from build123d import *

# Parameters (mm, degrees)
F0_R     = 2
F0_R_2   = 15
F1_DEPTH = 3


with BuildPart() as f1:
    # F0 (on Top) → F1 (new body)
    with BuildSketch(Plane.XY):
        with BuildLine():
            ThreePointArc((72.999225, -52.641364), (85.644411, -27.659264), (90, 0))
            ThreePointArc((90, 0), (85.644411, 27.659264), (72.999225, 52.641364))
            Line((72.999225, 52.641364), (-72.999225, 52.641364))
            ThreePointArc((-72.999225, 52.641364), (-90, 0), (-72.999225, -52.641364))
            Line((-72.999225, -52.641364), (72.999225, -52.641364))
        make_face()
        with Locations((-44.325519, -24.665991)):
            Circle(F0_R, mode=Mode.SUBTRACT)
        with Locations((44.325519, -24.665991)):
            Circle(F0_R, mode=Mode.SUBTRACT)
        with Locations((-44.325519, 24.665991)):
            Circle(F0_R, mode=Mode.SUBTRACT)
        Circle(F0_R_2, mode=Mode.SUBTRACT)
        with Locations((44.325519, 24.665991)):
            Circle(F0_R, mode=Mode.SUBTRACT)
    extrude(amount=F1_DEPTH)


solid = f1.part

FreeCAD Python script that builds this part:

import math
import FreeCAD as App
import Part
import Sketcher
from FreeCAD import Vector

doc = App.newDocument("Part")
body = doc.addObject("PartDesign::Body", "Body")

# Sketch on XY plane
sketch1 = body.newObject("Sketcher::SketchObject", "Sketch")
sketch1.AttachmentSupport = (doc.getObject("XY_Plane"), [""])
sketch1.MapMode = "FlatFace"
sketch1.addGeometry([
    Part.ArcOfCircle(Part.Circle(Vector(0, 0, 0), Vector(0, 0, 1), 90), math.radians(-36), math.radians(0)),  # 0
    Part.ArcOfCircle(Part.Circle(Vector(0, 0, 0), Vector(0, 0, 1), 90), math.radians(0), math.radians(36)),  # 1
    Part.LineSegment(Vector(73, 52.6, 0), Vector(-73, 52.6, 0)),  # 2
    Part.ArcOfCircle(Part.Circle(Vector(0, 0, 0), Vector(0, 0, 1), 90), math.radians(144), math.radians(216)),  # 3
    Part.LineSegment(Vector(-73, -52.6, 0), Vector(73, -52.6, 0)),  # 4
    Part.Circle(Vector(-44.3, -24.7, 0), Vector(0, 0, 1), 2),  # 5
    Part.Circle(Vector(44.3, -24.7, 0), Vector(0, 0, 1), 2),  # 6
    Part.Circle(Vector(-44.3, 24.7, 0), Vector(0, 0, 1), 2),  # 7
    Part.Circle(Vector(0, 0, 0), Vector(0, 0, 1), 15),  # 8
    Part.Circle(Vector(44.3, 24.7, 0), Vector(0, 0, 1), 2),  # 9
], False)
sketch1.addConstraint([
    Sketcher.Constraint("Tangent", 0, 2, 1, 1),
    Sketcher.Constraint("Coincident", 1, 2, 2, 1),
    Sketcher.Constraint("Coincident", 2, 2, 3, 1),
    Sketcher.Constraint("Coincident", 3, 2, 4, 1),
    Sketcher.Constraint("Coincident", 4, 2, 0, 1),
    Sketcher.Constraint("Horizontal", 2),
    Sketcher.Constraint("Horizontal", 4),
    Sketcher.Constraint("Coincident", 0, 3, -1, 1),
    Sketcher.Constraint("Coincident", 3, 3, -1, 1),
    Sketcher.Constraint("Coincident", 8, 3, -1, 1),
    Sketcher.Constraint("Equal", 0, 1),
    Sketcher.Constraint("Equal", 1, 3),
    Sketcher.Constraint("Equal", 5, 6),
    Sketcher.Constraint("Equal", 6, 7),
    Sketcher.Constraint("Equal", 7, 9),
    Sketcher.Constraint("Symmetric", 6, 3, 7, 3, -1, 1),
    Sketcher.Constraint("Symmetric", 5, 3, 9, 3, -1, 1),
    Sketcher.Constraint("Symmetric", 5, 3, 6, 3, -2),
    Sketcher.Constraint("PointOnObject", 0, 2, -1),
    Sketcher.Constraint("Vertical", 2, 2, 3, 2),
    Sketcher.Constraint("Diameter", 5, 4.0),
    Sketcher.Constraint("Diameter", 8, 30.0),
    Sketcher.Constraint("Radius", 0, 90.000001),
    Sketcher.Constraint("DistanceX", 2, 2, 2, 1, 145.99845),
    Sketcher.Constraint("DistanceX", 5, 3, -1, 1, 44.325519),
    Sketcher.Constraint("DistanceY", 5, 3, -1, 1, 24.665991),
])
pad1 = body.newObject("PartDesign::Pad", "Pad")
pad1.Profile = sketch1
pad1.Length = 3

doc.recompute()
